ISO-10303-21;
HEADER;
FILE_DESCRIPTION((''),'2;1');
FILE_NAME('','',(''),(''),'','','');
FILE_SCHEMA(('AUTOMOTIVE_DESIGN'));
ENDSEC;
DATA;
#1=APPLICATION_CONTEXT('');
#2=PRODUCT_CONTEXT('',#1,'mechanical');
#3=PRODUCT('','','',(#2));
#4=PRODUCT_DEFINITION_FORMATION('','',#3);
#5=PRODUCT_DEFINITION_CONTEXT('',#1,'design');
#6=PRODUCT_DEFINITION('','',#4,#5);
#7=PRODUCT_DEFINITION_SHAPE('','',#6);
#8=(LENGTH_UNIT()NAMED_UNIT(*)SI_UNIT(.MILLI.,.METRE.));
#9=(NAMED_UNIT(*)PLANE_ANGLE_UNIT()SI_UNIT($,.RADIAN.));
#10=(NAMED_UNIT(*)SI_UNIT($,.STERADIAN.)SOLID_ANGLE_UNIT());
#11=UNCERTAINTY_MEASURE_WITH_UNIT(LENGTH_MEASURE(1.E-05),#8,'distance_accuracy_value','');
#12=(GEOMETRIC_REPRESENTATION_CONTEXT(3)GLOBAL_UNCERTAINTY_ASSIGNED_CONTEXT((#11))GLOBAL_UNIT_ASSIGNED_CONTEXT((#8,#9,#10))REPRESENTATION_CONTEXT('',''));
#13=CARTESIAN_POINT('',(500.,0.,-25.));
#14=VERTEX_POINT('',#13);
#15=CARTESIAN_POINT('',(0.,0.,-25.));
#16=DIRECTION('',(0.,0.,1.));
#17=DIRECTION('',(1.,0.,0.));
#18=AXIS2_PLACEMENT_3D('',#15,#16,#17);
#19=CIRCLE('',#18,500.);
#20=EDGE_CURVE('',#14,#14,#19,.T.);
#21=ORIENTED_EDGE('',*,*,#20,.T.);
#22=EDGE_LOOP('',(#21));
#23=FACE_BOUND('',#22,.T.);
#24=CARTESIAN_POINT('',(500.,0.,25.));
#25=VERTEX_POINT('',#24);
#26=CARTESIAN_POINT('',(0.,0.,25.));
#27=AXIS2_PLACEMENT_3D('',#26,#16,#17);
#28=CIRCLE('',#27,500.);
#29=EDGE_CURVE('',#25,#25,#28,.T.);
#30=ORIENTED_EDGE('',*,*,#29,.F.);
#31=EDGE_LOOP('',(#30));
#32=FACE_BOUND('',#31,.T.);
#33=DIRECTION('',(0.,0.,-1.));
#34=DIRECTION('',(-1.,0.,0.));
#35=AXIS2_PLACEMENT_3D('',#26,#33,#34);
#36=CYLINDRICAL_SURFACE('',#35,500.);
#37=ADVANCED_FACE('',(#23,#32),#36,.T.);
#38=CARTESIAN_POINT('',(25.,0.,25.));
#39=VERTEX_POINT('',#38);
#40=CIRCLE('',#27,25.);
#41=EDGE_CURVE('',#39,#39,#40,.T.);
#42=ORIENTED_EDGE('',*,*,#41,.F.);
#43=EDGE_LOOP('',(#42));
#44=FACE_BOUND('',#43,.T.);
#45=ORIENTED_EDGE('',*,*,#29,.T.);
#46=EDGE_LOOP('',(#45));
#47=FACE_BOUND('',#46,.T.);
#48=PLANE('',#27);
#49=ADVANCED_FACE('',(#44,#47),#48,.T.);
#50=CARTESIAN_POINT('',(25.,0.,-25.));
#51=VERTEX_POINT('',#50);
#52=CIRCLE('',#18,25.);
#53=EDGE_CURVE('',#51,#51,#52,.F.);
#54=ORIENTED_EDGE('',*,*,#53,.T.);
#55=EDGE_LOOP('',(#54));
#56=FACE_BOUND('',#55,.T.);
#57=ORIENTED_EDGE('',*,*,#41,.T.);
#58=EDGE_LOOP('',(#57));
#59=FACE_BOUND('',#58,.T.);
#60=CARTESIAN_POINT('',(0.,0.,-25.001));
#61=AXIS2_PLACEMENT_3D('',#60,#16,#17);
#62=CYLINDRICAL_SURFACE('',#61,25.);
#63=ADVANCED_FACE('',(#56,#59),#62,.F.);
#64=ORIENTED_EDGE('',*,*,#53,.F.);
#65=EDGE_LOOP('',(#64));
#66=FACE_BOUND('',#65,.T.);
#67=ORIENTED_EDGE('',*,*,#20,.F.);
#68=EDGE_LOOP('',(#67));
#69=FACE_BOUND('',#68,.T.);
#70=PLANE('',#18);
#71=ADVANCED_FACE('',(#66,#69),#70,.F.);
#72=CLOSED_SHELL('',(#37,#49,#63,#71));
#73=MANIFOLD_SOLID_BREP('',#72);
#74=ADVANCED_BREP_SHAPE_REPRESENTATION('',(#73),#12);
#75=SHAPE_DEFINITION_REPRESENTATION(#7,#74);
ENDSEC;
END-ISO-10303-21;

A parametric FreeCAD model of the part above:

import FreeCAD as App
import Part
import Sketcher

V = App.Vector
Q = App.Units.Quantity

doc = App.newDocument("Part")
body = doc.addObject("PartDesign::Body", "Body")

# Sketch on XY plane
sketch1 = doc.addObject("Sketcher::SketchObject", "Sketch")
body.addObject(sketch1)
sketch1.AttachmentSupport = (doc.XY_Plane, [""])
sketch1.MapMode = "FlatFace"
sketch1.addGeometry(Part.Circle(V(0, 0, 0), V(0, 0, 1), 500), False)
sketch1.addConstraint([
    Sketcher.Constraint("Coincident", 0, 3, -1, 1),
    Sketcher.Constraint("Diameter", 0, Q("1000 mm")),
])
pad1 = doc.addObject("PartDesign::Pad", "Pad")
body.addObject(pad1)
pad1.Profile = sketch1
pad1.Length = 50
pad1.Midplane = True

# Sketch on XY plane
sketch2 = doc.addObject("Sketcher::SketchObject", "Sketch001")
body.addObject(sketch2)
sketch2.AttachmentSupport = (doc.XY_Plane, [""])
sketch2.MapMode = "FlatFace"
sketch2.AttachmentOffset = App.Placement(V(0, 0, 25), App.Rotation())
sketch2.addGeometry(Part.Circle(V(0, 0, 0), V(0, 0, 1), 25), False)
sketch2.addConstraint([
    Sketcher.Constraint("Coincident", 0, 3, -1, 1),
    Sketcher.Constraint("Diameter", 0, Q("50 mm")),
])
pocket1 = doc.addObject("PartDesign::Pocket", "Pocket")
body.addObject(pocket1)
pocket1.Profile = sketch2
pocket1.Type = "UpToFirst"

doc.recompute()
